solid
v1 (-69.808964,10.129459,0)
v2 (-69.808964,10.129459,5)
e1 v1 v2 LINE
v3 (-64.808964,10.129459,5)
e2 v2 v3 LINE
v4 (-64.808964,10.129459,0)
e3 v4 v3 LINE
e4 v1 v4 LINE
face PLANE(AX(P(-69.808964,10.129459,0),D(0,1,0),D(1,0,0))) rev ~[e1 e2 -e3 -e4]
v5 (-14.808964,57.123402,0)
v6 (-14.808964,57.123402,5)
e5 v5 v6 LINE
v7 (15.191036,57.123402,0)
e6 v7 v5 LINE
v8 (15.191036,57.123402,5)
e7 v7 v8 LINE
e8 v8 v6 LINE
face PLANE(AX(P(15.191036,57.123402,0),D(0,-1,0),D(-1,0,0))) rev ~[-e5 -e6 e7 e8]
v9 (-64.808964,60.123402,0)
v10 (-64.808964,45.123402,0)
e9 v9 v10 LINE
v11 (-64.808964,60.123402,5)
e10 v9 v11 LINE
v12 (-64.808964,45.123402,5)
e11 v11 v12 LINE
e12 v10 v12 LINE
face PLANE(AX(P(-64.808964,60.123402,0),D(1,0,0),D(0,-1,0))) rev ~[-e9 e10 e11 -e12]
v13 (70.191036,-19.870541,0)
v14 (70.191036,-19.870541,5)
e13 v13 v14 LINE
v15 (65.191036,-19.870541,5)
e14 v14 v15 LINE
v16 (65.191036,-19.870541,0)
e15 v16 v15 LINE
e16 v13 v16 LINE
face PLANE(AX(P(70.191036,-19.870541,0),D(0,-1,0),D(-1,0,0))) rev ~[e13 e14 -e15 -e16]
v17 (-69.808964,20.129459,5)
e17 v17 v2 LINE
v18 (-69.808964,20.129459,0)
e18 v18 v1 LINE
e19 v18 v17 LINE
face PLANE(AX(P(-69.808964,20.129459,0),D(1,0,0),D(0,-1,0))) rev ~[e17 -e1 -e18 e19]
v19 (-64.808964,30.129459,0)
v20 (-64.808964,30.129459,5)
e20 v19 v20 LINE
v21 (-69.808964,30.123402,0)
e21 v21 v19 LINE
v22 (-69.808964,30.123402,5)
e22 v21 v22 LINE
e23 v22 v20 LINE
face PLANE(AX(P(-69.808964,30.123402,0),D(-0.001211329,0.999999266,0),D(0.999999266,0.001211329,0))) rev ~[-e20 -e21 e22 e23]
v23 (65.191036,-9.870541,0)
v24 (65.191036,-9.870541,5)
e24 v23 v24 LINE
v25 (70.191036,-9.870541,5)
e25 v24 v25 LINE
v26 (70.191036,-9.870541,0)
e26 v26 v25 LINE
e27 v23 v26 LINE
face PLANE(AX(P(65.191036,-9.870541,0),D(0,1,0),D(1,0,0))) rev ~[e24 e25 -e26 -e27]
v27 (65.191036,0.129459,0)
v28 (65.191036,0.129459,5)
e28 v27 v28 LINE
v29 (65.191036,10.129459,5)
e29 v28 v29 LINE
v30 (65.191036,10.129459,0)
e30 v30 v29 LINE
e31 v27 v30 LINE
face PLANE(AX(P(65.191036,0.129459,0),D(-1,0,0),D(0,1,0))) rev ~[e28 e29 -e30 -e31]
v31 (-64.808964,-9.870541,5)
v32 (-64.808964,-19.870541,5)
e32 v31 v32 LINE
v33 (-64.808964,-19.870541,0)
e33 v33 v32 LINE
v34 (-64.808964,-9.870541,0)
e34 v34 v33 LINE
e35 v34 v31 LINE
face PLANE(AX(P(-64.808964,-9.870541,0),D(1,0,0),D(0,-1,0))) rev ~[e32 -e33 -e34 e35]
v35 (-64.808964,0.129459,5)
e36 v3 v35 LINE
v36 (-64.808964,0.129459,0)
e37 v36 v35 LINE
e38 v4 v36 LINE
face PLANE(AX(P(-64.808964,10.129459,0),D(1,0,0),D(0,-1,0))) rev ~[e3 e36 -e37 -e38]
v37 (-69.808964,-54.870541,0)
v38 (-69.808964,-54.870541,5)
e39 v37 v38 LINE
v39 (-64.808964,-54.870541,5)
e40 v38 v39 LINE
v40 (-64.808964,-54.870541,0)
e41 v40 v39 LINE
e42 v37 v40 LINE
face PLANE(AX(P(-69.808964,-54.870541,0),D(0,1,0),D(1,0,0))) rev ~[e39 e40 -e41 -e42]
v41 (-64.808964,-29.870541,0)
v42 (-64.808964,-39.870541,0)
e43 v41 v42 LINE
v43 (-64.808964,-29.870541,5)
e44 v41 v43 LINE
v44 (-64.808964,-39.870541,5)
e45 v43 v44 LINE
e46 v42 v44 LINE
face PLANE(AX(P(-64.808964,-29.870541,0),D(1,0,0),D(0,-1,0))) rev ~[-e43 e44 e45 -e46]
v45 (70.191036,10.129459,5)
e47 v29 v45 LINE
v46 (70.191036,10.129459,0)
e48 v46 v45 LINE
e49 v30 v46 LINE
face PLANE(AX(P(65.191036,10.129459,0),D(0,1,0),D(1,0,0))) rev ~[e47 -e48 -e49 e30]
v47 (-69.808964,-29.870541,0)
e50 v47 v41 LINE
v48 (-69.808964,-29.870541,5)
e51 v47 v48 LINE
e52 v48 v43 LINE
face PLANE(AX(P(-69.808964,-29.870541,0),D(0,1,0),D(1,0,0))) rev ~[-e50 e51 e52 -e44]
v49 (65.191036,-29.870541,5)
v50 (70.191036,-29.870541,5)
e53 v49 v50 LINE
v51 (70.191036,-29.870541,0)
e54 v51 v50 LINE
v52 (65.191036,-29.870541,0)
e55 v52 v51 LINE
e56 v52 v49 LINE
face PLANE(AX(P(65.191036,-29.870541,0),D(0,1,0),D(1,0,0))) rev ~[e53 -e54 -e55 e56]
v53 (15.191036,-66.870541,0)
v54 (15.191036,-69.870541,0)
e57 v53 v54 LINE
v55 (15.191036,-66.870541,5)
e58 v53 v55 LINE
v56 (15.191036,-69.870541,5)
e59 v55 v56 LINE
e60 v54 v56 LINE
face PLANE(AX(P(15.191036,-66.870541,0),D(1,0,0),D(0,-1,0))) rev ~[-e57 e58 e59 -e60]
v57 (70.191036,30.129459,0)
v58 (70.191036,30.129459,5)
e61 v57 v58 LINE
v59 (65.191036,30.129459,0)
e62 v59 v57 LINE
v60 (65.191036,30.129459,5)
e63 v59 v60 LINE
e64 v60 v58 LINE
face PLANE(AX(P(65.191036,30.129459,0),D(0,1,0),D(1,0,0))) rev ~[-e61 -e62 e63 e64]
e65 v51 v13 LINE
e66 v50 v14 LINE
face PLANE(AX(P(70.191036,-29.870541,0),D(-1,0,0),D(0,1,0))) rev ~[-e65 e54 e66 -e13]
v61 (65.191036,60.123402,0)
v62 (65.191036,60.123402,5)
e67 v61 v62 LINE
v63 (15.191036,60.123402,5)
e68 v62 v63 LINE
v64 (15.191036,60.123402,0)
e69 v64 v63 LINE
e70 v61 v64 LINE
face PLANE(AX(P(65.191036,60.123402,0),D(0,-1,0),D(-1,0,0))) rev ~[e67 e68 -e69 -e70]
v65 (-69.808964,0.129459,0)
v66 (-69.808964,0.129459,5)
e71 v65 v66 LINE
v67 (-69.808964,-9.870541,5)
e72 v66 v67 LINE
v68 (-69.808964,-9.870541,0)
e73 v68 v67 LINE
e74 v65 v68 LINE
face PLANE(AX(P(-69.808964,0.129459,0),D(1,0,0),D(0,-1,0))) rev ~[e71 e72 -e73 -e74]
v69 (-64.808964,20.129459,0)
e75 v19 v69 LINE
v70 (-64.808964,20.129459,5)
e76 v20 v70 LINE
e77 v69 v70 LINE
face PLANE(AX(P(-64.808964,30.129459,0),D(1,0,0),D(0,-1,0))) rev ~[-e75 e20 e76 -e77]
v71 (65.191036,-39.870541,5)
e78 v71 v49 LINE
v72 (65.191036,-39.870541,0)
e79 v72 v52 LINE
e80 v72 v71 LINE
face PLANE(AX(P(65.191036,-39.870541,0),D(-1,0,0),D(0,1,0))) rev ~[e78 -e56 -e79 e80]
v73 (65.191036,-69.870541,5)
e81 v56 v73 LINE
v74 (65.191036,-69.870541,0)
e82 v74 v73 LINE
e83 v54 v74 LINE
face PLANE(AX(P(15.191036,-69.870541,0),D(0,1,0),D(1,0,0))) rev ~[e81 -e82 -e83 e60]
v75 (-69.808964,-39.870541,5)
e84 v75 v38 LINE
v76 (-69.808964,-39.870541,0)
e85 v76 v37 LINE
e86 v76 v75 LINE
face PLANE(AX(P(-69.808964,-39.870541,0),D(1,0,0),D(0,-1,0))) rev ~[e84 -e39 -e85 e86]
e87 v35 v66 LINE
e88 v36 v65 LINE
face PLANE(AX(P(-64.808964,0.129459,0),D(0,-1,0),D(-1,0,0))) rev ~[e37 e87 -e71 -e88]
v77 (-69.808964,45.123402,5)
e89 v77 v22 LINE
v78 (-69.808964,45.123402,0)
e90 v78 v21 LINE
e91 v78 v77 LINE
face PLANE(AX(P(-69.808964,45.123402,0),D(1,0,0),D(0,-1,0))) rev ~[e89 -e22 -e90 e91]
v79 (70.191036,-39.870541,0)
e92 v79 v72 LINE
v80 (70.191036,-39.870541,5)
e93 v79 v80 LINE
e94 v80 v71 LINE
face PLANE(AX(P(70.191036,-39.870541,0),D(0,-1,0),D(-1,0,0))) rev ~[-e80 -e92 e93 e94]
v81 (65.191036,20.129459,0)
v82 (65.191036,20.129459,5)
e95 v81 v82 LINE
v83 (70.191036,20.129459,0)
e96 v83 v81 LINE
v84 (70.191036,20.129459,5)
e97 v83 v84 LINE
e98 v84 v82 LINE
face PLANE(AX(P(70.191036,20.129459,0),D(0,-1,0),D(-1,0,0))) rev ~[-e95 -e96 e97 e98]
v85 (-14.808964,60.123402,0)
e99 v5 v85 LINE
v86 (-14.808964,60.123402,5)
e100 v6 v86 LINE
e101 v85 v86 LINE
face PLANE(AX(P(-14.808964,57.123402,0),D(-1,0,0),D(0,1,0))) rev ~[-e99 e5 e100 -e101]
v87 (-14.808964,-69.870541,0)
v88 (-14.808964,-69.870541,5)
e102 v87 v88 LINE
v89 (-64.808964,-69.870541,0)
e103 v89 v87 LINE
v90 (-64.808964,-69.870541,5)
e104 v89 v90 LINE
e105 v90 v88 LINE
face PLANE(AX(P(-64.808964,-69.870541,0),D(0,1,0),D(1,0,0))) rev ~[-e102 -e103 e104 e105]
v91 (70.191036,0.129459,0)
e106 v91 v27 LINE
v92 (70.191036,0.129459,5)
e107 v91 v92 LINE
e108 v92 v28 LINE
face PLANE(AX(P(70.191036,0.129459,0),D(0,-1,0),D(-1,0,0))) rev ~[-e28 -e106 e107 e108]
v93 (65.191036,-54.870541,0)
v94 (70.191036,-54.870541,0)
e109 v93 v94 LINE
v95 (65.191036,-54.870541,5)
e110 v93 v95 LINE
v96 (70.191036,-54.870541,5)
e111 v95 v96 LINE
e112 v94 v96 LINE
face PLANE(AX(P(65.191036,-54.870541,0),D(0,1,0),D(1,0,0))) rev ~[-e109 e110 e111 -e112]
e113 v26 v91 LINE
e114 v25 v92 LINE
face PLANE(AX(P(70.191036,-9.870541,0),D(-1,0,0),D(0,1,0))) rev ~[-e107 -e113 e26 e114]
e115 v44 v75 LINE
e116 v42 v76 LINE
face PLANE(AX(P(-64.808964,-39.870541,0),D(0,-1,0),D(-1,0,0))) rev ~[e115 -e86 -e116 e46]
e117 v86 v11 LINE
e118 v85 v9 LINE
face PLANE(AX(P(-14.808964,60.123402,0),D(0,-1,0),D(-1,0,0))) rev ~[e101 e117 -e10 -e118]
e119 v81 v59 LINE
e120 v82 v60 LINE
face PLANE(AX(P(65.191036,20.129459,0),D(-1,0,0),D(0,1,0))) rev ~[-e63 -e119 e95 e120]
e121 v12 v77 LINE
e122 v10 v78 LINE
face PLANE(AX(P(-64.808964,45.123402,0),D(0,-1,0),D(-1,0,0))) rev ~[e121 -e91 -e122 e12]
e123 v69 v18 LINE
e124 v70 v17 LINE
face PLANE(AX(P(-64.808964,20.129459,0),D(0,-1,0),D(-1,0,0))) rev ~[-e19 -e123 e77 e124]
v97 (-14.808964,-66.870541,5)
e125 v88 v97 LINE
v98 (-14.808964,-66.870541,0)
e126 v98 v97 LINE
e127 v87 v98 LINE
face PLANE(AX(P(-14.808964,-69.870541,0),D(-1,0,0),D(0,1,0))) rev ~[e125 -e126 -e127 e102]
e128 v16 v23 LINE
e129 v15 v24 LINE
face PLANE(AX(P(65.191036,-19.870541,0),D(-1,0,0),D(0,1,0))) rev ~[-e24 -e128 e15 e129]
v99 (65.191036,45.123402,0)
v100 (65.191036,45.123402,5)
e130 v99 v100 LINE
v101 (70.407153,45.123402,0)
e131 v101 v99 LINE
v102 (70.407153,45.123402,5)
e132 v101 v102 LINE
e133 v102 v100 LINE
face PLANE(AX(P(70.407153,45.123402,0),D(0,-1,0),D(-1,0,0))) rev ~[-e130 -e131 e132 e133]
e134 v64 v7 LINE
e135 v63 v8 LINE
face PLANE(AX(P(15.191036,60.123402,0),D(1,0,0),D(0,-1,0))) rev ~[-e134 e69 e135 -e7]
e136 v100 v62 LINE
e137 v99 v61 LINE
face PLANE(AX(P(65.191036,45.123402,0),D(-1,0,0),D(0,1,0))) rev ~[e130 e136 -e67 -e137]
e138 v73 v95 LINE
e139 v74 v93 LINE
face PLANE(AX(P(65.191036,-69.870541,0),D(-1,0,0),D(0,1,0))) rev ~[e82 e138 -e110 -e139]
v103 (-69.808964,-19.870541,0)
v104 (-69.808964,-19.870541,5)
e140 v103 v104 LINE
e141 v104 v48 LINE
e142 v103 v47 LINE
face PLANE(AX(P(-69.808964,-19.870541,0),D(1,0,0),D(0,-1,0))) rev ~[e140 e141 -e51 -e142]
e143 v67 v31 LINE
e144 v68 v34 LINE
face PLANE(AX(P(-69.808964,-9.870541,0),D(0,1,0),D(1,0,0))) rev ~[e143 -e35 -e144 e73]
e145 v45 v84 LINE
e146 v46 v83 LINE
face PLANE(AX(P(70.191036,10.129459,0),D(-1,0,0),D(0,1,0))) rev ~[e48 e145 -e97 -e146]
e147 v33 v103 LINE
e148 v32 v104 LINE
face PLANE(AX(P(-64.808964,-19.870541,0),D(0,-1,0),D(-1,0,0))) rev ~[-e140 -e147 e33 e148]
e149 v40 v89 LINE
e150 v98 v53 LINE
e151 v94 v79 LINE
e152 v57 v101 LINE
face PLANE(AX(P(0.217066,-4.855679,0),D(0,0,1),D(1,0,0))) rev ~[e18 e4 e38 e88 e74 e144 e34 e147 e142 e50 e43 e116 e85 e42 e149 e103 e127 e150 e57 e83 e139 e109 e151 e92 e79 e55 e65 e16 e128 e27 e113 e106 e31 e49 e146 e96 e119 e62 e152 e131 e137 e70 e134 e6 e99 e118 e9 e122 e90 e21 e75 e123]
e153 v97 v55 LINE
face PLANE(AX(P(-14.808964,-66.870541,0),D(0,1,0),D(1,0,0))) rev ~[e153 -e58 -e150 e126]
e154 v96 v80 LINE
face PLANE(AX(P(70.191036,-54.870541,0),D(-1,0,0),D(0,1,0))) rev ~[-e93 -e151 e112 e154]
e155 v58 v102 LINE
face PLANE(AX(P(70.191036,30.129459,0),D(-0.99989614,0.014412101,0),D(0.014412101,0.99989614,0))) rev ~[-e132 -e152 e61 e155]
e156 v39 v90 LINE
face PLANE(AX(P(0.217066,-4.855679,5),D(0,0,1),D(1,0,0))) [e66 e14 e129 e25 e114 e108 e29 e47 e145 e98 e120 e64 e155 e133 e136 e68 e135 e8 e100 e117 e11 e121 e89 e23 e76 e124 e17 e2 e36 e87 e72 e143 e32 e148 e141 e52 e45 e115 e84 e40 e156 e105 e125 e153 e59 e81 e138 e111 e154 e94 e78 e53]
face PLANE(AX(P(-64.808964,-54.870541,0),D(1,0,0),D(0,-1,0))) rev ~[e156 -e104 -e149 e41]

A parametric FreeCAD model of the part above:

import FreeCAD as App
import Part
import Sketcher
from FreeCAD import Vector


def add_polygon(sketch, points):
    """Adds a closed chain of lines whose ends are joined by coincident constraints."""
    first, n = sketch.GeometryCount, len(points)
    for a, b in zip(points, points[1:] + points[:1]):
        sketch.addGeometry(Part.LineSegment(App.Vector(*a, 0), App.Vector(*b, 0)), False)
    for i in range(n):
        sketch.addConstraint(Sketcher.Constraint("Coincident", first + i, 2, first + (i + 1) % n, 1))

doc = App.newDocument("Part")
body = doc.addObject("PartDesign::Body", "Body")

# Sketch on XY plane
sketch1 = body.newObject("Sketcher::SketchObject", "Sketch")
sketch1.AttachmentSupport = (doc.getObject("XY_Plane"), [""])
sketch1.MapMode = "FlatFace"
add_polygon(sketch1, [(-14.8, -69.9), (-14.8, -66.9), (15.2, -66.9), (15.2, -69.9), (65.2, -69.9), (65.2, -54.9), (70.2, -54.9), (70.2, -39.9), (65.2, -39.9), (65.2, -29.9), (70.2, -29.9), (70.2, -19.9), (65.2, -19.9), (65.2, -9.9), (70.2, -9.9), (70.2, 0.1), (65.2, 0.1), (65.2, 10.1), (70.2, 10.1), (70.2, 20.1), (65.2, 20.1), (65.2, 30.1), (70.2, 30.1), (70.4, 45.1), (65.2, 45.1), (65.2, 60.1), (15.2, 60.1), (15.2, 57.1), (-14.8, 57.1), (-14.8, 60.1), (-64.8, 60.1), (-64.8, 45.1), (-69.8, 45.1), (-69.8, 30.1), (-64.8, 30.1), (-64.8, 20.1), (-69.8, 20.1), (-69.8, 10.1), (-64.8, 10.1), (-64.8, 0.1), (-69.8, 0.1), (-69.8, -9.9), (-64.8, -9.9), (-64.8, -19.9), (-69.8, -19.9), (-69.8, -29.9), (-64.8, -29.9), (-64.8, -39.9), (-69.8, -39.9), (-69.8, -54.9), (-64.8, -54.9), (-64.8, -69.9)])  # lines 0-51
sketch1.addConstraint(Sketcher.Constraint("Vertical", 0))
sketch1.addConstraint(Sketcher.Constraint("Horizontal", 1))
sketch1.addConstraint(Sketcher.Constraint("Vertical", 2))
sketch1.addConstraint(Sketcher.Constraint("Horizontal", 3))
sketch1.addConstraint(Sketcher.Constraint("Vertical", 4))
sketch1.addConstraint(Sketcher.Constraint("Horizontal", 5))
sketch1.addConstraint(Sketcher.Constraint("Vertical", 6))
sketch1.addConstraint(Sketcher.Constraint("Horizontal", 7))
sketch1.addConstraint(Sketcher.Constraint("Vertical", 8))
sketch1.addConstraint(Sketcher.Constraint("Horizontal", 9))
sketch1.addConstraint(Sketcher.Constraint("Vertical", 10))
sketch1.addConstraint(Sketcher.Constraint("Horizontal", 11))
sketch1.addConstraint(Sketcher.Constraint("Vertical", 12))
sketch1.addConstraint(Sketcher.Constraint("Horizontal", 13))
sketch1.addConstraint(Sketcher.Constraint("Vertical", 14))
sketch1.addConstraint(Sketcher.Constraint("Horizontal", 15))
sketch1.addConstraint(Sketcher.Constraint("Vertical", 16))
sketch1.addConstraint(Sketcher.Constraint("Horizontal", 17))
sketch1.addConstraint(Sketcher.Constraint("Vertical", 18))
sketch1.addConstraint(Sketcher.Constraint("Horizontal", 19))
sketch1.addConstraint(Sketcher.Constraint("Vertical", 20))
sketch1.addConstraint(Sketcher.Constraint("Horizontal", 21))
sketch1.addConstraint(Sketcher.Constraint("Horizontal", 23))
sketch1.addConstraint(Sketcher.Constraint("Vertical", 24))
sketch1.addConstraint(Sketcher.Constraint("Horizontal", 25))
sketch1.addConstraint(Sketcher.Constraint("Vertical", 26))
sketch1.addConstraint(Sketcher.Constraint("Horizontal", 27))
sketch1.addConstraint(Sketcher.Constraint("Vertical", 28))
sketch1.addConstraint(Sketcher.Constraint("Horizontal", 29))
sketch1.addConstraint(Sketcher.Constraint("Vertical", 30))
sketch1.addConstraint(Sketcher.Constraint("Horizontal", 31))
sketch1.addConstraint(Sketcher.Constraint("Vertical", 32))
sketch1.addConstraint(Sketcher.Constraint("Vertical", 34))
sketch1.addConstraint(Sketcher.Constraint("Horizontal", 35))
sketch1.addConstraint(Sketcher.Constraint("Vertical", 36))
sketch1.addConstraint(Sketcher.Constraint("Horizontal", 37))
sketch1.addConstraint(Sketcher.Constraint("Vertical", 38))
sketch1.addConstraint(Sketcher.Constraint("Horizontal", 39))
sketch1.addConstraint(Sketcher.Constraint("Vertical", 40))
sketch1.addConstraint(Sketcher.Constraint("Horizontal", 41))
sketch1.addConstraint(Sketcher.Constraint("Vertical", 42))
sketch1.addConstraint(Sketcher.Constraint("Horizontal", 43))
sketch1.addConstraint(Sketcher.Constraint("Vertical", 44))
sketch1.addConstraint(Sketcher.Constraint("Horizontal", 45))
sketch1.addConstraint(Sketcher.Constraint("Vertical", 46))
sketch1.addConstraint(Sketcher.Constraint("Horizontal", 47))
sketch1.addConstraint(Sketcher.Constraint("Vertical", 48))
sketch1.addConstraint(Sketcher.Constraint("Horizontal", 49))
sketch1.addConstraint(Sketcher.Constraint("Vertical", 50))
sketch1.addConstraint(Sketcher.Constraint("Horizontal", 51))
sketch1.addConstraint(Sketcher.Constraint("Horizontal", 25, 2, 28, 2))
sketch1.addConstraint(Sketcher.Constraint("Horizontal", 23, 2, 30, 2))
sketch1.addConstraint(Sketcher.Constraint("Horizontal", 21, 2, 33, 2))
sketch1.addConstraint(Sketcher.Constraint("Horizontal", 19, 2, 34, 2))
sketch1.addConstraint(Sketcher.Constraint("Horizontal", 17, 2, 36, 2))
sketch1.addConstraint(Sketcher.Constraint("Horizontal", 15, 2, 38, 2))
sketch1.addConstraint(Sketcher.Constraint("Horizontal", 13, 2, 40, 2))
sketch1.addConstraint(Sketcher.Constraint("Horizontal", 11, 2, 42, 2))
sketch1.addConstraint(Sketcher.Constraint("Horizontal", 9, 2, 44, 2))
sketch1.addConstraint(Sketcher.Constraint("Horizontal", 7, 2, 46, 2))
sketch1.addConstraint(Sketcher.Constraint("Horizontal", 5, 2, 48, 2))
sketch1.addConstraint(Sketcher.Constraint("Horizontal", 3, 2, 50, 2))
sketch1.addConstraint(Sketcher.Constraint("Vertical", 4, 2, 7, 2))
sketch1.addConstraint(Sketcher.Constraint("Vertical", 6, 2, 9, 2))
sketch1.addConstraint(Sketcher.Constraint("Vertical", 8, 2, 11, 2))
sketch1.addConstraint(Sketcher.Constraint("Vertical", 10, 2, 13, 2))
sketch1.addConstraint(Sketcher.Constraint("Vertical", 12, 2, 15, 2))
sketch1.addConstraint(Sketcher.Constraint("Vertical", 14, 2, 17, 2))
sketch1.addConstraint(Sketcher.Constraint("Vertical", 16, 2, 19, 2))
sketch1.addConstraint(Sketcher.Constraint("Vertical", 18, 2, 21, 2))
sketch1.addConstraint(Sketcher.Constraint("Vertical", 20, 2, 23, 2))
sketch1.addConstraint(Sketcher.Constraint("Vertical", 2, 2, 25, 2))
sketch1.addConstraint(Sketcher.Constraint("Vertical", 0, 2, 27, 2))
sketch1.addConstraint(Sketcher.Constraint("Vertical", 30, 2, 33, 2))
sketch1.addConstraint(Sketcher.Constraint("Vertical", 32, 2, 35, 2))
sketch1.addConstraint(Sketcher.Constraint("Vertical", 34, 2, 37, 2))
sketch1.addConstraint(Sketcher.Constraint("Vertical", 36, 2, 39, 2))
sketch1.addConstraint(Sketcher.Constraint("Vertical", 38, 2, 41, 2))
sketch1.addConstraint(Sketcher.Constraint("Vertical", 40, 2, 43, 2))
sketch1.addConstraint(Sketcher.Constraint("Vertical", 42, 2, 45, 2))
sketch1.addConstraint(Sketcher.Constraint("Vertical", 44, 2, 47, 2))
sketch1.addConstraint(Sketcher.Constraint("Vertical", 46, 2, 49, 2))
sketch1.addConstraint(Sketcher.Constraint("Equal", 25, 29))
sketch1.addConstraint(Sketcher.Constraint("Equal", 21, 31))
sketch1.addConstraint(Sketcher.Constraint("Equal", 4, 6))
sketch1.addConstraint(Sketcher.Constraint("Equal", 8, 10))
sketch1.addConstraint(Sketcher.Constraint("Equal", 10, 12))
sketch1.addConstraint(Sketcher.Constraint("Equal", 12, 14))
sketch1.addConstraint(Sketcher.Constraint("Equal", 14, 16))
sketch1.addConstraint(Sketcher.Constraint("Equal", 16, 18))
sketch1.addConstraint(Sketcher.Constraint("Equal", 18, 20))
sketch1.addConstraint(Sketcher.Constraint("Equal", 6, 24))
sketch1.addConstraint(Sketcher.Constraint("Equal", 2, 26))
sketch1.addConstraint(Sketcher.Constraint("Equal", 30, 32))
sketch1.addConstraint(Sketcher.Constraint("DistanceX", 1, 1, 1, 2, 30.0))
sketch1.addConstraint(Sketcher.Constraint("DistanceX", 3, 1, 3, 2, 50.0))
sketch1.addConstraint(Sketcher.Constraint("DistanceX", 5, 1, 5, 2, 5.0))
sketch1.addConstraint(Sketcher.Constraint("DistanceY", 0, 1, 0, 2, 3.0))
sketch1.addConstraint(Sketcher.Constraint("DistanceY", 4, 1, 4, 2, 15.0))
sketch1.addConstraint(Sketcher.Constraint("DistanceY", 8, 1, 8, 2, 10.0))
sketch1.addConstraint(Sketcher.Constraint("Distance", 22, 14.995501))
sketch1.addConstraint(Sketcher.Constraint("DistanceX", 23, 2, 23, 1, 5.216117))
sketch1.addConstraint(Sketcher.Constraint("DistanceY", 0, 2, -1, 1, 66.870541))
sketch1.addConstraint(Sketcher.Constraint("DistanceX", 0, 2, -1, 1, 14.808964))
pad1 = body.newObject("PartDesign::Pad", "Pad")
pad1.Profile = sketch1
pad1.Length = 5

doc.recompute()
